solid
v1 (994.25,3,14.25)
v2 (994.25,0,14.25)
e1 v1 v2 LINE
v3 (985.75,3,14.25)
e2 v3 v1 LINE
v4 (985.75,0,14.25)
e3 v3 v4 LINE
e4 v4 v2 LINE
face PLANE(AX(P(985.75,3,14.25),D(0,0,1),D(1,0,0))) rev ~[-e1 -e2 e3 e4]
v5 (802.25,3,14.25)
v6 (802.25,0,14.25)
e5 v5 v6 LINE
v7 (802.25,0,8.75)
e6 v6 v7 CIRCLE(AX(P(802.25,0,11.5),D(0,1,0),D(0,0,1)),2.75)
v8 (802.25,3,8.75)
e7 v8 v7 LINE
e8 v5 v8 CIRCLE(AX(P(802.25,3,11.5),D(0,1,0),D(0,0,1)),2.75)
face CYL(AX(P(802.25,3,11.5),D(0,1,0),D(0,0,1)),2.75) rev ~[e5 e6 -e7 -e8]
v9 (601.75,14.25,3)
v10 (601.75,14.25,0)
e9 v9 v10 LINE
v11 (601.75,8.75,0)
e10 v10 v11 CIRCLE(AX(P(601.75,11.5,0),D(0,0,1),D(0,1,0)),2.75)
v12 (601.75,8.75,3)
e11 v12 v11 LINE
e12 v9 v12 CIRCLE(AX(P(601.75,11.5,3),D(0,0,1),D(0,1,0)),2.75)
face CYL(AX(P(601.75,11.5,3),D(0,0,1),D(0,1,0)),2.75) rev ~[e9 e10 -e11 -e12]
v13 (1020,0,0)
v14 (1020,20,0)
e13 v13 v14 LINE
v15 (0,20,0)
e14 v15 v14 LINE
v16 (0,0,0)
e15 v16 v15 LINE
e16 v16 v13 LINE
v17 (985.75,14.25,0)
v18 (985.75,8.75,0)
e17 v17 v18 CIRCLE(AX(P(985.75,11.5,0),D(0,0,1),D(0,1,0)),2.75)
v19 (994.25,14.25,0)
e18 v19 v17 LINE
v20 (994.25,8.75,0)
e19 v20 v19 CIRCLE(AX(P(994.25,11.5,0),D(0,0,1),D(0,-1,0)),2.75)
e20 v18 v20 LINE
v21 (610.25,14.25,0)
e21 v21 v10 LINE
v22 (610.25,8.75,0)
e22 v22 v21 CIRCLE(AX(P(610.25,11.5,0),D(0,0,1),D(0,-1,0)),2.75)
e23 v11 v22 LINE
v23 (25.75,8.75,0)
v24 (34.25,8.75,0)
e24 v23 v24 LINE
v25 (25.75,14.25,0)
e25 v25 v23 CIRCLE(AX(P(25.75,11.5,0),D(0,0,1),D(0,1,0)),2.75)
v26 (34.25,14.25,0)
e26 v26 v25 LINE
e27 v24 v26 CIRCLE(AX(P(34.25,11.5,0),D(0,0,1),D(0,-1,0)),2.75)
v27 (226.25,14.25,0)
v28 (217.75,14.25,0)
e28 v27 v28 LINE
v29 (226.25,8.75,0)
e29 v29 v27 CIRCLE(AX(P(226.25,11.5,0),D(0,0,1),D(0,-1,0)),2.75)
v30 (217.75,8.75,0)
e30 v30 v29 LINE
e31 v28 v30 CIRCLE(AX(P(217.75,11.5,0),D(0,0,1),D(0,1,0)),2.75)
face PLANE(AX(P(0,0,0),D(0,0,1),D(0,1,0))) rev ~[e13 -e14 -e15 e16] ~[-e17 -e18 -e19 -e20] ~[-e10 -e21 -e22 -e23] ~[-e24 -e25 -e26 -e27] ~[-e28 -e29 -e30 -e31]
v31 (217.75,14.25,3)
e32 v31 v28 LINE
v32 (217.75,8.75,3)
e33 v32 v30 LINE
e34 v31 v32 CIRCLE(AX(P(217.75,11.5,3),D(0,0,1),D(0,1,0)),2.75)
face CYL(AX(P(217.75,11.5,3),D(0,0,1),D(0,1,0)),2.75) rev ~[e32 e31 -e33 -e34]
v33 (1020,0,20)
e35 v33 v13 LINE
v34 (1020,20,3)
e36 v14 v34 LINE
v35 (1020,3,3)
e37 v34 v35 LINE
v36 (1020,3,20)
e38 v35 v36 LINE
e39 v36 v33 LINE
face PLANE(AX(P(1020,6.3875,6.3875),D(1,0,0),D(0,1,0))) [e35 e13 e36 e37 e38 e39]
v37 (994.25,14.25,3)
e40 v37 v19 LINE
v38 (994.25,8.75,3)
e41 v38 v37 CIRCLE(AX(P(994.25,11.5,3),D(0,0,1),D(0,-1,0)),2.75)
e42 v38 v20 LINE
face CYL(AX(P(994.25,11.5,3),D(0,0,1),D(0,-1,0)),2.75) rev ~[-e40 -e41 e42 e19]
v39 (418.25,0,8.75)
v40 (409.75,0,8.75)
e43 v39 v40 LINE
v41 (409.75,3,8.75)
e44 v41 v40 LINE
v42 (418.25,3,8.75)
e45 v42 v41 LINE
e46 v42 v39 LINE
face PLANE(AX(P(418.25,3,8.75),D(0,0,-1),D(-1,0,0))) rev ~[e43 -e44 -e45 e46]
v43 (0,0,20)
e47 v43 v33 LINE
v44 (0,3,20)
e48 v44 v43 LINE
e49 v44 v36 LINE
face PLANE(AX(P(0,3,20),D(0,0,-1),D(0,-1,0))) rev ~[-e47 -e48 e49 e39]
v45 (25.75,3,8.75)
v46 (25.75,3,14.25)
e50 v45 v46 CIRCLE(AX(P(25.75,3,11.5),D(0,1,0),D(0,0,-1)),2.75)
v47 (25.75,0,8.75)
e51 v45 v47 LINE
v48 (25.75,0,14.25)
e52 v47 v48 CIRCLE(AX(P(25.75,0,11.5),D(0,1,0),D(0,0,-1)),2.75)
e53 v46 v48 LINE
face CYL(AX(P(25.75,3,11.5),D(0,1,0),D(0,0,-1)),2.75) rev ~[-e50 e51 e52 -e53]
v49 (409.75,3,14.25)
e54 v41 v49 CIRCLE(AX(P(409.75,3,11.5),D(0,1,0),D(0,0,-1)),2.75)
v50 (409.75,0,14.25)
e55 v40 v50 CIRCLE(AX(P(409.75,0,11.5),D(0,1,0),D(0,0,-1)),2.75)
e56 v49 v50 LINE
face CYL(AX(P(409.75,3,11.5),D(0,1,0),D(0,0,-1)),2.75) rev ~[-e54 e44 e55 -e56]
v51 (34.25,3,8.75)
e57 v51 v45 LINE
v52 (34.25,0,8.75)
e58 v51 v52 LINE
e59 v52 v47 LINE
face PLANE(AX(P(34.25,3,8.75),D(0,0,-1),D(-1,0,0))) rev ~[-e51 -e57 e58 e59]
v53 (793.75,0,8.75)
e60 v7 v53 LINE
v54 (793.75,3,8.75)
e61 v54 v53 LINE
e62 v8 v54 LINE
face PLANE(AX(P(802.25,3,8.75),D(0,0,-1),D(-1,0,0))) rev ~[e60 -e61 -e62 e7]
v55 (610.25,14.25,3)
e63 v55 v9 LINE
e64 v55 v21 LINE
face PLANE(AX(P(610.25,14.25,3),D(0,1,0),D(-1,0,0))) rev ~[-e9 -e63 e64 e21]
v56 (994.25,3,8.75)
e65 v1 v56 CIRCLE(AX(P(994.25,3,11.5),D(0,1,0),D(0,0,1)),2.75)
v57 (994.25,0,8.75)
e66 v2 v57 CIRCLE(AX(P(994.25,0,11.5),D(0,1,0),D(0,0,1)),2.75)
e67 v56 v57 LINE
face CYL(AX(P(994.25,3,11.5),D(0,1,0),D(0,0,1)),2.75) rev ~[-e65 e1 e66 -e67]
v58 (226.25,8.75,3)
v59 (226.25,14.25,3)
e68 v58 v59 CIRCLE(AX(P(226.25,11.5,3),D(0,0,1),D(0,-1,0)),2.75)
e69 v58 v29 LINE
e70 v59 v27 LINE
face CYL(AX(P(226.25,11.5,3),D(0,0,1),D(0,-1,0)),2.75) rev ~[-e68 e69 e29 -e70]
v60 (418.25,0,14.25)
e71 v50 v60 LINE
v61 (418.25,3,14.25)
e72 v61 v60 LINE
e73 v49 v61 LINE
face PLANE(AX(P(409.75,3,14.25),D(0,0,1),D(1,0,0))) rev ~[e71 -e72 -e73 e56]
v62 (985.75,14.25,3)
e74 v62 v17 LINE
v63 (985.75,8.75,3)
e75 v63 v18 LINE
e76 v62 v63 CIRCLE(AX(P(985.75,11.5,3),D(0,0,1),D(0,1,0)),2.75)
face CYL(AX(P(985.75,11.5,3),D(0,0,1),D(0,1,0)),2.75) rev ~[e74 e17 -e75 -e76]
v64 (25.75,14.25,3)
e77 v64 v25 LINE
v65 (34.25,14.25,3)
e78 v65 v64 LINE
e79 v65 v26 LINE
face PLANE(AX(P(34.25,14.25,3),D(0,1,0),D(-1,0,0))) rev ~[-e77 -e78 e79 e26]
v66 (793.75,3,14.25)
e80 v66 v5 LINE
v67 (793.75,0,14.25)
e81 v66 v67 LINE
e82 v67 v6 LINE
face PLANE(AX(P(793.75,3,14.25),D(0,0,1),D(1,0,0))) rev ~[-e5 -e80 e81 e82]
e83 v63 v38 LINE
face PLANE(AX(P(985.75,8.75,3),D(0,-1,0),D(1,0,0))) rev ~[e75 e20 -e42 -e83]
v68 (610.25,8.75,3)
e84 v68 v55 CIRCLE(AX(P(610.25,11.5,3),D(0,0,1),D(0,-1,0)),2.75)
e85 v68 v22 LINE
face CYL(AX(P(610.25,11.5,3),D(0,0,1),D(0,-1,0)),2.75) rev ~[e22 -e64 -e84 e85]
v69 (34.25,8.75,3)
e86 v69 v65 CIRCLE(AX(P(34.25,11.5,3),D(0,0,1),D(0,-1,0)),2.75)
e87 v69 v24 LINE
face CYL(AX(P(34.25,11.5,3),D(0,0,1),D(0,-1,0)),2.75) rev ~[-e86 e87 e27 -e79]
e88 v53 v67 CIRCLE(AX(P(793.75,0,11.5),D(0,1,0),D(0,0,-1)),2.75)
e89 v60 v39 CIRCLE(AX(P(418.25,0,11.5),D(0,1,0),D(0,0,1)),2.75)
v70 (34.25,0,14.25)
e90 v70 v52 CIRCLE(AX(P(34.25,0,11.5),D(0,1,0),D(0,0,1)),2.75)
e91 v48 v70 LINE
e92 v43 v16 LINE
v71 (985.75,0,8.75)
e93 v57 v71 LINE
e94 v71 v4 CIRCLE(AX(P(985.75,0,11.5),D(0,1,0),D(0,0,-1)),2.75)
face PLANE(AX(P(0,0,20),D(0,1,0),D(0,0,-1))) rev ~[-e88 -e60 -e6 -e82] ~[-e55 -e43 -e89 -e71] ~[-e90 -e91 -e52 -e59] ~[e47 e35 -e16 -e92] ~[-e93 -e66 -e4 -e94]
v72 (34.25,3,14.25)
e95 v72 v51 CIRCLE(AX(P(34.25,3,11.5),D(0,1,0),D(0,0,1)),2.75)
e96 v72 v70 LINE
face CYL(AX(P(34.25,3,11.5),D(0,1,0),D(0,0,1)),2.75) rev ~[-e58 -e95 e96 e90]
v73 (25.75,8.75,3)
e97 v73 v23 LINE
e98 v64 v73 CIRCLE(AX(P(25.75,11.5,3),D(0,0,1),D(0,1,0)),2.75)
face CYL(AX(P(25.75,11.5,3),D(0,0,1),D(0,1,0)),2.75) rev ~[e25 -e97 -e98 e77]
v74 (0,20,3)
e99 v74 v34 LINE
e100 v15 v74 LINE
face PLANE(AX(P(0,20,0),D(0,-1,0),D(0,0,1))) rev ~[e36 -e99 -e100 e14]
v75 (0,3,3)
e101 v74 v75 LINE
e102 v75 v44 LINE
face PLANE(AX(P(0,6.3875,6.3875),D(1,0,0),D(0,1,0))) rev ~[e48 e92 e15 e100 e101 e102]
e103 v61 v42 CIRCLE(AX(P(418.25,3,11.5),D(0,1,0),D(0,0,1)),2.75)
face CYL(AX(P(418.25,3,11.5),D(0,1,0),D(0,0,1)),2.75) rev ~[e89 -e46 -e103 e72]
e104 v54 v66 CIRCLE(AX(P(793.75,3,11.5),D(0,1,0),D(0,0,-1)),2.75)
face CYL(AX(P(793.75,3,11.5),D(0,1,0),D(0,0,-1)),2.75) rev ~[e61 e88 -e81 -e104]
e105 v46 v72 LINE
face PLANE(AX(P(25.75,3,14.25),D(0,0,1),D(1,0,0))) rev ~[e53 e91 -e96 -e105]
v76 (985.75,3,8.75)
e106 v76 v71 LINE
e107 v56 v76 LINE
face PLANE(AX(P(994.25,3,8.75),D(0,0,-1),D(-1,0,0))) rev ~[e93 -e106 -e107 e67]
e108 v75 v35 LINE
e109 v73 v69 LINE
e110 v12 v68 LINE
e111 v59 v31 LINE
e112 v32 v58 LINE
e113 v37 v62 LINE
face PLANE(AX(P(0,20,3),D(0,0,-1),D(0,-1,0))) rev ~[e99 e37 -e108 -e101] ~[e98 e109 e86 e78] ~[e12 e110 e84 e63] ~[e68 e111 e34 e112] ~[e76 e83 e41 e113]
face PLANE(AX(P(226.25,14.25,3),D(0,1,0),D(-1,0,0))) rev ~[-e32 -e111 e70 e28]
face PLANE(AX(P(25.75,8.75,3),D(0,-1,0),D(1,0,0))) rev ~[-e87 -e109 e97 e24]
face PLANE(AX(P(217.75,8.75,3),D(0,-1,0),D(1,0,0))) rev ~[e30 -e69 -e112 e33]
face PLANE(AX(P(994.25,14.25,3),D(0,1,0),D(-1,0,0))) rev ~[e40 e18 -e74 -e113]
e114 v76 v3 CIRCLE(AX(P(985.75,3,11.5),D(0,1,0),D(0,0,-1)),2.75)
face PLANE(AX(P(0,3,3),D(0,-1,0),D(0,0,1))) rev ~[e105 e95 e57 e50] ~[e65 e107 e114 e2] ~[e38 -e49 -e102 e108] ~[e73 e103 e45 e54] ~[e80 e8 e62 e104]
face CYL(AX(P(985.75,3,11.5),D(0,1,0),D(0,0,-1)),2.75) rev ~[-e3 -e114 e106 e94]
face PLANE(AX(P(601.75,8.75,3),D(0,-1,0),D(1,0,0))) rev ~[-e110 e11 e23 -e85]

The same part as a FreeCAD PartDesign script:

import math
import FreeCAD as App
import Part
import Sketcher

V = App.Vector
Q = App.Units.Quantity


def add_polygon(sketch, points):
    """Adds a closed chain of lines whose ends are joined by coincident constraints."""
    first, n = sketch.GeometryCount, len(points)
    for a, b in zip(points, points[1:] + points[:1]):
        sketch.addGeometry(Part.LineSegment(App.Vector(*a, 0), App.Vector(*b, 0)), False)
    for i in range(n):
        sketch.addConstraint(Sketcher.Constraint("Coincident", first + i, 2, first + (i + 1) % n, 1))

doc = App.newDocument("Part")
body = doc.addObject("PartDesign::Body", "Body")

# Sketch on YZ plane
sketch1 = doc.addObject("Sketcher::SketchObject", "Sketch")
body.addObject(sketch1)
sketch1.AttachmentSupport = (doc.YZ_Plane, [""])
sketch1.MapMode = "FlatFace"
add_polygon(sketch1, [(0, 20), (0, 0), (20, 0), (20, 3), (3, 3), (3, 20)])  # lines 0-5
sketch1.addConstraint([
    Sketcher.Constraint("Vertical", 0),
    Sketcher.Constraint("Horizontal", 1),
    Sketcher.Constraint("Vertical", 2),
    Sketcher.Constraint("Horizontal", 3),
    Sketcher.Constraint("Vertical", 4),
    Sketcher.Constraint("Horizontal", 5),
    Sketcher.Constraint("Coincident", 0, 2, -1, 1),
    Sketcher.Constraint("Equal", 1, 0),
    Sketcher.Constraint("Equal", 5, 2),
    Sketcher.Constraint("DistanceX", 1, 1, 1, 2, Q("20 mm")),
    Sketcher.Constraint("DistanceX", 3, 2, 3, 1, Q("17 mm")),
])
pad1 = doc.addObject("PartDesign::Pad", "Pad")
body.addObject(pad1)
pad1.Profile = sketch1
pad1.Length = 1020

# Sketch on XZ plane
sketch2 = doc.addObject("Sketcher::SketchObject", "Sketch001")
body.addObject(sketch2)
sketch2.AttachmentSupport = (doc.XZ_Plane, [""])
sketch2.MapMode = "FlatFace"
sketch2.AttachmentOffset = App.Placement(V(0, 0, -3), App.Rotation())
sketch2.addGeometry([
    Part.LineSegment(V(985.8, 14.2, 0), V(994.2, 14.2, 0)),  # 0
    Part.ArcOfCircle(Part.Circle(V(994.2, 11.5, 0), V(0, 0, 1), 2.8), math.radians(-90), math.radians(90)),  # 1
    Part.LineSegment(V(994.2, 8.8, 0), V(985.8, 8.8, 0)),  # 2
    Part.ArcOfCircle(Part.Circle(V(985.8, 11.5, 0), V(0, 0, 1), 2.8), math.radians(90), math.radians(270)),  # 3
    Part.LineSegment(V(25.8, 14.2, 0), V(34.2, 14.2, 0)),  # 4
    Part.ArcOfCircle(Part.Circle(V(34.2, 11.5, 0), V(0, 0, 1), 2.8), math.radians(-90), math.radians(90)),  # 5
    Part.LineSegment(V(34.2, 8.8, 0), V(25.8, 8.8, 0)),  # 6
    Part.ArcOfCircle(Part.Circle(V(25.8, 11.5, 0), V(0, 0, 1), 2.8), math.radians(90), math.radians(270)),  # 7
    Part.LineSegment(V(793.8, 14.2, 0), V(802.2, 14.2, 0)),  # 8
    Part.ArcOfCircle(Part.Circle(V(802.2, 11.5, 0), V(0, 0, 1), 2.8), math.radians(-90), math.radians(90)),  # 9
    Part.LineSegment(V(802.2, 8.8, 0), V(793.8, 8.8, 0)),  # 10
    Part.ArcOfCircle(Part.Circle(V(793.8, 11.5, 0), V(0, 0, 1), 2.8), math.radians(90), math.radians(270)),  # 11
    Part.LineSegment(V(409.8, 14.2, 0), V(418.2, 14.2, 0)),  # 12
    Part.ArcOfCircle(Part.Circle(V(418.2, 11.5, 0), V(0, 0, 1), 2.8), math.radians(-90), math.radians(90)),  # 13
    Part.LineSegment(V(418.2, 8.8, 0), V(409.8, 8.8, 0)),  # 14
    Part.ArcOfCircle(Part.Circle(V(409.8, 11.5, 0), V(0, 0, 1), 2.8), math.radians(90), math.radians(270)),  # 15
], False)
sketch2.addConstraint([
    Sketcher.Constraint("Tangent", 0, 2, 1, 2),
    Sketcher.Constraint("Tangent", 1, 1, 2, 1),
    Sketcher.Constraint("Tangent", 2, 2, 3, 2),
    Sketcher.Constraint("Tangent", 3, 1, 0, 1),
    Sketcher.Constraint("Tangent", 4, 2, 5, 2),
    Sketcher.Constraint("Tangent", 5, 1, 6, 1),
    Sketcher.Constraint("Tangent", 6, 2, 7, 2),
    Sketcher.Constraint("Tangent", 7, 1, 4, 1),
    Sketcher.Constraint("Tangent", 8, 2, 9, 2),
    Sketcher.Constraint("Tangent", 9, 1, 10, 1),
    Sketcher.Constraint("Tangent", 10, 2, 11, 2),
    Sketcher.Constraint("Tangent", 11, 1, 8, 1),
    Sketcher.Constraint("Tangent", 12, 2, 13, 2),
    Sketcher.Constraint("Tangent", 13, 1, 14, 1),
    Sketcher.Constraint("Tangent", 14, 2, 15, 2),
    Sketcher.Constraint("Tangent", 15, 1, 12, 1),
    Sketcher.Constraint("Horizontal", 0),
    Sketcher.Constraint("Horizontal", 2),
    Sketcher.Constraint("Horizontal", 4),
    Sketcher.Constraint("Horizontal", 6),
    Sketcher.Constraint("Horizontal", 8),
    Sketcher.Constraint("Horizontal", 10),
    Sketcher.Constraint("Horizontal", 12),
    Sketcher.Constraint("Horizontal", 14),
    Sketcher.Constraint("Equal", 3, 5),
    Sketcher.Constraint("Equal", 7, 9),
    Sketcher.Constraint("Equal", 11, 13),
    Sketcher.Constraint("Horizontal", 3, 3, 5, 3),
    Sketcher.Constraint("Horizontal", 7, 3, 9, 3),
    Sketcher.Constraint("Horizontal", 11, 3, 13, 3),
    Sketcher.Constraint("Equal", 2, 4),
    Sketcher.Constraint("Equal", 6, 8),
    Sketcher.Constraint("Equal", 10, 12),
    Sketcher.Constraint("Radius", 1, Q("2.75 mm")),
    Sketcher.Constraint("DistanceX", 0, 1, 0, 2, Q("8.5 mm")),
    Sketcher.Constraint("DistanceX", 5, 3, 1, 3, Q("960 mm")),
    Sketcher.Constraint("DistanceX", 9, 3, 1, 3, Q("192 mm")),
    Sketcher.Constraint("DistanceX", 5, 3, 13, 3, Q("384 mm")),
    Sketcher.Constraint("DistanceY", -1, 1, 1, 3, Q("11.5 mm")),
    Sketcher.Constraint("DistanceX", -1, 1, 1, 3, Q("994.25 mm")),
])
pocket1 = doc.addObject("PartDesign::Pocket", "Pocket")
body.addObject(pocket1)
pocket1.Profile = sketch2
pocket1.Length = 3
pocket1.Reversed = True

# Sketch on XY plane
sketch3 = doc.addObject("Sketcher::SketchObject", "Sketch002")
body.addObject(sketch3)
sketch3.AttachmentSupport = (doc.XY_Plane, [""])
sketch3.MapMode = "FlatFace"
sketch3.AttachmentOffset = App.Placement(V(0, 0, 3), App.Rotation())
sketch3.addGeometry([
    Part.LineSegment(V(994.2, 14.2, 0), V(985.8, 14.2, 0)),  # 0
    Part.ArcOfCircle(Part.Circle(V(985.8, 11.5, 0), V(0, 0, 1), 2.8), math.radians(90), math.radians(270)),  # 1
    Part.LineSegment(V(985.8, 8.8, 0), V(994.2, 8.8, 0)),  # 2
    Part.ArcOfCircle(Part.Circle(V(994.2, 11.5, 0), V(0, 0, 1), 2.8), math.radians(-90), math.radians(90)),  # 3
    Part.LineSegment(V(226.2, 14.2, 0), V(217.8, 14.2, 0)),  # 4
    Part.ArcOfCircle(Part.Circle(V(217.8, 11.5, 0), V(0, 0, 1), 2.8), math.radians(90), math.radians(270)),  # 5
    Part.LineSegment(V(217.8, 8.8, 0), V(226.2, 8.8, 0)),  # 6
    Part.ArcOfCircle(Part.Circle(V(226.2, 11.5, 0), V(0, 0, 1), 2.8), math.radians(-90), math.radians(90)),  # 7
    Part.LineSegment(V(34.2, 14.2, 0), V(25.8, 14.2, 0)),  # 8
    Part.ArcOfCircle(Part.Circle(V(25.8, 11.5, 0), V(0, 0, 1), 2.8), math.radians(90), math.radians(270)),  # 9
    Part.LineSegment(V(25.8, 8.8, 0), V(34.2, 8.8, 0)),  # 10
    Part.ArcOfCircle(Part.Circle(V(34.2, 11.5, 0), V(0, 0, 1), 2.8), math.radians(-90), math.radians(90)),  # 11
    Part.LineSegment(V(610.2, 14.2, 0), V(601.8, 14.2, 0)),  # 12
    Part.ArcOfCircle(Part.Circle(V(601.8, 11.5, 0), V(0, 0, 1), 2.8), math.radians(90), math.radians(270)),  # 13
    Part.LineSegment(V(601.8, 8.8, 0), V(610.2, 8.8, 0)),  # 14
    Part.ArcOfCircle(Part.Circle(V(610.2, 11.5, 0), V(0, 0, 1), 2.8), math.radians(-90), math.radians(90)),  # 15
], False)
sketch3.addConstraint([
    Sketcher.Constraint("Tangent", 0, 2, 1, 1),
    Sketcher.Constraint("Tangent", 1, 2, 2, 1),
    Sketcher.Constraint("Tangent", 2, 2, 3, 1),
    Sketcher.Constraint("Tangent", 3, 2, 0, 1),
    Sketcher.Constraint("Tangent", 4, 2, 5, 1),
    Sketcher.Constraint("Tangent", 5, 2, 6, 1),
    Sketcher.Constraint("Tangent", 6, 2, 7, 1),
    Sketcher.Constraint("Tangent", 7, 2, 4, 1),
    Sketcher.Constraint("Tangent", 8, 2, 9, 1),
    Sketcher.Constraint("Tangent", 9, 2, 10, 1),
    Sketcher.Constraint("Tangent", 10, 2, 11, 1),
    Sketcher.Constraint("Tangent", 11, 2, 8, 1),
    Sketcher.Constraint("Tangent", 12, 2, 13, 1),
    Sketcher.Constraint("Tangent", 13, 2, 14, 1),
    Sketcher.Constraint("Tangent", 14, 2, 15, 1),
    Sketcher.Constraint("Tangent", 15, 2, 12, 1),
    Sketcher.Constraint("Horizontal", 0),
    Sketcher.Constraint("Horizontal", 2),
    Sketcher.Constraint("Horizontal", 4),
    Sketcher.Constraint("Horizontal", 6),
    Sketcher.Constraint("Horizontal", 8),
    Sketcher.Constraint("Horizontal", 10),
    Sketcher.Constraint("Horizontal", 12),
    Sketcher.Constraint("Horizontal", 14),
    Sketcher.Constraint("Equal", 3, 5),
    Sketcher.Constraint("Equal", 7, 9),
    Sketcher.Constraint("Equal", 11, 13),
    Sketcher.Constraint("Horizontal", 3, 3, 5, 3),
    Sketcher.Constraint("Horizontal", 7, 3, 9, 3),
    Sketcher.Constraint("Horizontal", 11, 3, 13, 3),
    Sketcher.Constraint("Equal", 2, 4),
    Sketcher.Constraint("Equal", 6, 8),
    Sketcher.Constraint("Equal", 10, 12),
    Sketcher.Constraint("Radius", 1, Q("2.75 mm")),
    Sketcher.Constraint("DistanceX", 0, 2, 0, 1, Q("8.5 mm")),
    Sketcher.Constraint("DistanceX", 5, 3, 1, 3, Q("768 mm")),
    Sketcher.Constraint("DistanceX", 9, 3, 5, 3, Q("192 mm")),
    Sketcher.Constraint("DistanceX", 13, 3, 1, 3, Q("384 mm")),
    Sketcher.Constraint("DistanceY", -1, 1, 1, 3, Q("11.5 mm")),
    Sketcher.Constraint("DistanceX", -1, 1, 1, 3, Q("985.75 mm")),
])
pocket2 = doc.addObject("PartDesign::Pocket", "Pocket001")
body.addObject(pocket2)
pocket2.Profile = sketch3
pocket2.Length = 3

doc.recompute()
